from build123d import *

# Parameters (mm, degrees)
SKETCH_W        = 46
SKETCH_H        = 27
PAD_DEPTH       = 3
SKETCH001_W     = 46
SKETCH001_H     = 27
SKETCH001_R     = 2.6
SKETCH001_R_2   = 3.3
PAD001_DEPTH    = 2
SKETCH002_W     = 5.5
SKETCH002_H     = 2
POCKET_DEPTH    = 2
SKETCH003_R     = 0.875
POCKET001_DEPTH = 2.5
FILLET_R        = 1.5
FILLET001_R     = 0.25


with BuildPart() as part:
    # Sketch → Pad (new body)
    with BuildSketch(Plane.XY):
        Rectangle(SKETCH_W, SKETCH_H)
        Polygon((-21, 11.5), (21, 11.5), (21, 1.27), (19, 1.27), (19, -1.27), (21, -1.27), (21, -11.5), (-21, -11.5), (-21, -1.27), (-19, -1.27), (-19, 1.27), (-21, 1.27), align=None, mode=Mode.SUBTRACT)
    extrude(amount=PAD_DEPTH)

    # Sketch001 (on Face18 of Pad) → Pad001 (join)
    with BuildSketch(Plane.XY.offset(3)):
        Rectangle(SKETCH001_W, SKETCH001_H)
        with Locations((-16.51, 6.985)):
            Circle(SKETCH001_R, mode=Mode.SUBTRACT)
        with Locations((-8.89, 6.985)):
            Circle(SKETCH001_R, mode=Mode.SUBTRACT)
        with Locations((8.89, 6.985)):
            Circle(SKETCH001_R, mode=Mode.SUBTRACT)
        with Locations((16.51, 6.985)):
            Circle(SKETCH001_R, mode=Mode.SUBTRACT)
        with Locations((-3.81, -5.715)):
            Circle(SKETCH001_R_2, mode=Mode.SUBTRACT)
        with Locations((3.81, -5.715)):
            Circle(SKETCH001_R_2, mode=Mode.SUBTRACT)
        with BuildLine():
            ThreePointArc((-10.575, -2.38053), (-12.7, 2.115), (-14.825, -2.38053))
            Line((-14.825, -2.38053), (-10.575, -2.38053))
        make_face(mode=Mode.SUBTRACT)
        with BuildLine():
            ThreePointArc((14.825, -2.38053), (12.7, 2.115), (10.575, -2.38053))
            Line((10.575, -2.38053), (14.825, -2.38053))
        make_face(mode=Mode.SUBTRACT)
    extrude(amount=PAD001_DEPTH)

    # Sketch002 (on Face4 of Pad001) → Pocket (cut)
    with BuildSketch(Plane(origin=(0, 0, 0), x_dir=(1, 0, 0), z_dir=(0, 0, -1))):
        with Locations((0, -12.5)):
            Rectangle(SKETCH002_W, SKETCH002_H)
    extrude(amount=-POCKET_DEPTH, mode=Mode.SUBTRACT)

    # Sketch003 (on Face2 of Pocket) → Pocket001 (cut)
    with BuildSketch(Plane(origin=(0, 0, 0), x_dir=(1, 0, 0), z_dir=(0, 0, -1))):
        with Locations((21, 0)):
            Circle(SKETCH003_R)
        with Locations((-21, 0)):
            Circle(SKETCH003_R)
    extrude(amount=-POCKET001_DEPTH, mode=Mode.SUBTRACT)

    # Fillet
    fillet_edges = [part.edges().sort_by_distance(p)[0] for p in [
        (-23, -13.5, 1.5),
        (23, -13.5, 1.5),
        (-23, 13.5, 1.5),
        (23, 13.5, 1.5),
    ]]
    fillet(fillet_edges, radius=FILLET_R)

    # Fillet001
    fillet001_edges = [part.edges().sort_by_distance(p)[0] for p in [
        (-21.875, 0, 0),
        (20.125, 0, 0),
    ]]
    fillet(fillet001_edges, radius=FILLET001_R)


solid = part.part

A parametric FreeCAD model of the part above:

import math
import FreeCAD as App
import Part
import Sketcher

V = App.Vector


def edges_at(feature, points):
    """Names of the edges that pass closest to the given points."""
    edges = feature.Shape.Edges
    near = lambda p: min(range(len(edges)), key=lambda i: edges[i].distToShape(Part.Vertex(*p))[0])
    return sorted({f"Edge{near(p) + 1}" for p in points})

doc = App.newDocument("Part")
body = doc.addObject("PartDesign::Body", "Body")

sketch1 = body.newObject("Sketcher::SketchObject", "Sketch")
sketch1.AttachmentSupport = (doc.getObject("XY_Plane"), [""])
sketch1.MapMode = "FlatFace"
sketch1.addGeometry(Part.LineSegment(V(-23, 13.5, 0), V(-23, -13.5, 0)), False)
sketch1.addGeometry(Part.LineSegment(V(-23, -13.5, 0), V(23, -13.5, 0)), False)
sketch1.addGeometry(Part.LineSegment(V(23, -13.5, 0), V(23, 13.5, 0)), False)
sketch1.addGeometry(Part.LineSegment(V(23, 13.5, 0), V(-23, 13.5, 0)), False)
sketch1.addGeometry(Part.LineSegment(V(-21, 1.27, 0), V(-21, 11.5, 0)), False)
sketch1.addGeometry(Part.LineSegment(V(-21, 11.5, 0), V(21, 11.5, 0)), False)
sketch1.addGeometry(Part.LineSegment(V(21, 11.5, 0), V(21, 1.27, 0)), False)
sketch1.addGeometry(Part.LineSegment(V(21, 1.27, 0), V(19, 1.27, 0)), False)
sketch1.addGeometry(Part.LineSegment(V(19, 1.27, 0), V(19, -1.27, 0)), False)
sketch1.addGeometry(Part.LineSegment(V(19, -1.27, 0), V(21, -1.27, 0)), False)
sketch1.addGeometry(Part.LineSegment(V(21, -1.27, 0), V(21, -11.5, 0)), False)
sketch1.addGeometry(Part.LineSegment(V(21, -11.5, 0), V(-21, -11.5, 0)), False)
sketch1.addGeometry(Part.LineSegment(V(-21, -11.5, 0), V(-21, -1.27, 0)), False)
sketch1.addGeometry(Part.LineSegment(V(-21, -1.27, 0), V(-19, -1.27, 0)), False)
sketch1.addGeometry(Part.LineSegment(V(-19, -1.27, 0), V(-19, 1.27, 0)), False)
sketch1.addGeometry(Part.LineSegment(V(-19, 1.27, 0), V(-21, 1.27, 0)), False)
sketch1.addConstraint(Sketcher.Constraint("Coincident", 0, 2, 1, 1))
sketch1.addConstraint(Sketcher.Constraint("Coincident", 1, 2, 2, 1))
sketch1.addConstraint(Sketcher.Constraint("Coincident", 2, 2, 3, 1))
sketch1.addConstraint(Sketcher.Constraint("Coincident", 3, 2, 0, 1))
sketch1.addConstraint(Sketcher.Constraint("Coincident", 4, 2, 5, 1))
sketch1.addConstraint(Sketcher.Constraint("Coincident", 5, 2, 6, 1))
sketch1.addConstraint(Sketcher.Constraint("Coincident", 6, 2, 7, 1))
sketch1.addConstraint(Sketcher.Constraint("Coincident", 7, 2, 8, 1))
sketch1.addConstraint(Sketcher.Constraint("Coincident", 8, 2, 9, 1))
sketch1.addConstraint(Sketcher.Constraint("Coincident", 9, 2, 10, 1))
sketch1.addConstraint(Sketcher.Constraint("Coincident", 10, 2, 11, 1))
sketch1.addConstraint(Sketcher.Constraint("Coincident", 11, 2, 12, 1))
sketch1.addConstraint(Sketcher.Constraint("Coincident", 12, 2, 13, 1))
sketch1.addConstraint(Sketcher.Constraint("Coincident", 13, 2, 14, 1))
sketch1.addConstraint(Sketcher.Constraint("Coincident", 14, 2, 15, 1))
sketch1.addConstraint(Sketcher.Constraint("Coincident", 15, 2, 4, 1))
sketch1.addConstraint(Sketcher.Constraint("Vertical", 0))
sketch1.addConstraint(Sketcher.Constraint("Horizontal", 1))
sketch1.addConstraint(Sketcher.Constraint("Vertical", 2))
sketch1.addConstraint(Sketcher.Constraint("Horizontal", 3))
sketch1.addConstraint(Sketcher.Constraint("Vertical", 4))
sketch1.addConstraint(Sketcher.Constraint("Horizontal", 5))
sketch1.addConstraint(Sketcher.Constraint("Vertical", 6))
sketch1.addConstraint(Sketcher.Constraint("Horizontal", 7))
sketch1.addConstraint(Sketcher.Constraint("Vertical", 8))
sketch1.addConstraint(Sketcher.Constraint("Horizontal", 9))
sketch1.addConstraint(Sketcher.Constraint("Vertical", 10))
sketch1.addConstraint(Sketcher.Constraint("Horizontal", 11))
sketch1.addConstraint(Sketcher.Constraint("Vertical", 12))
sketch1.addConstraint(Sketcher.Constraint("Horizontal", 13))
sketch1.addConstraint(Sketcher.Constraint("Vertical", 14))
sketch1.addConstraint(Sketcher.Constraint("Horizontal", 15))
sketch1.addConstraint(Sketcher.Constraint("Symmetric", 0, 2, 2, 2, -1, 1))
sketch1.addConstraint(Sketcher.Constraint("Symmetric", 4, 2, 10, 2, -1, 1))
sketch1.addConstraint(Sketcher.Constraint("Symmetric", 6, 2, 12, 2, -1, 1))
sketch1.addConstraint(Sketcher.Constraint("Symmetric", 8, 2, 14, 2, -1, 1))
sketch1.addConstraint(Sketcher.Constraint("Symmetric", 9, 2, 12, 2, -2))
sketch1.addConstraint(Sketcher.Constraint("DistanceX", 1, 1, 1, 2, 46.0))
sketch1.addConstraint(Sketcher.Constraint("DistanceX", 5, 1, 5, 2, 42.0))
sketch1.addConstraint(Sketcher.Constraint("DistanceX", 7, 2, 7, 1, 2.0))
sketch1.addConstraint(Sketcher.Constraint("DistanceY", 0, 2, 0, 1, 27.0))
sketch1.addConstraint(Sketcher.Constraint("DistanceY", 4, 2, 3, 2, 2.0))
sketch1.addConstraint(Sketcher.Constraint("DistanceY", 4, 1, 4, 2, 10.23))
pad1 = body.newObject("PartDesign::Pad", "Pad")
pad1.Profile = sketch1
pad1.Length = 3

sketch2 = body.newObject("Sketcher::SketchObject", "Sketch001")
sketch2.AttachmentSupport = (doc.getObject("XY_Plane"), [""])
sketch2.MapMode = "FlatFace"
sketch2.AttachmentOffset = App.Placement(V(0, 0, 3), App.Rotation())
sketch2.addGeometry(Part.LineSegment(V(-23, 13.5, 0), V(-23, -13.5, 0)), False)
sketch2.addGeometry(Part.LineSegment(V(-23, -13.5, 0), V(23, -13.5, 0)), False)
sketch2.addGeometry(Part.LineSegment(V(23, -13.5, 0), V(23, 13.5, 0)), False)
sketch2.addGeometry(Part.LineSegment(V(23, 13.5, 0), V(-23, 13.5, 0)), False)
sketch2.addGeometry(Part.Circle(V(-3.81, -5.715, 0), V(0, 0, 1), 3.3), False)
sketch2.addGeometry(Part.ArcOfCircle(Part.Circle(V(-12.7, -0.635, 0), V(0, 0, 1), 2.75), math.radians(-39.400569), math.radians(219.400569)), False)
sketch2.addGeometry(Part.LineSegment(V(-10.575, -2.38053, 0), V(-14.825, -2.38053, 0)), False)
sketch2.addGeometry(Part.Circle(V(3.81, -5.715, 0), V(0, 0, 1), 3.3), False)
sketch2.addGeometry(Part.ArcOfCircle(Part.Circle(V(12.7, -0.635, 0), V(0, 0, 1), 2.75), math.radians(-39.400569), math.radians(219.400569)), False)
sketch2.addGeometry(Part.LineSegment(V(14.825, -2.38053, 0), V(10.575, -2.38053, 0)), False)
sketch2.addGeometry(Part.Circle(V(-16.51, 6.985, 0), V(0, 0, 1), 2.6), False)
sketch2.addGeometry(Part.Circle(V(-8.89, 6.985, 0), V(0, 0, 1), 2.6), False)
sketch2.addGeometry(Part.Circle(V(8.89, 6.985, 0), V(0, 0, 1), 2.6), False)
sketch2.addGeometry(Part.Circle(V(16.51, 6.985, 0), V(0, 0, 1), 2.6), False)
sketch2.addConstraint(Sketcher.Constraint("Coincident", 0, 2, 1, 1))
sketch2.addConstraint(Sketcher.Constraint("Coincident", 1, 2, 2, 1))
sketch2.addConstraint(Sketcher.Constraint("Coincident", 2, 2, 3, 1))
sketch2.addConstraint(Sketcher.Constraint("Coincident", 3, 2, 0, 1))
sketch2.addConstraint(Sketcher.Constraint("Coincident", 5, 1, 6, 1))
sketch2.addConstraint(Sketcher.Constraint("Coincident", 6, 2, 5, 2))
sketch2.addConstraint(Sketcher.Constraint("Coincident", 8, 1, 9, 1))
sketch2.addConstraint(Sketcher.Constraint("Coincident", 9, 2, 8, 2))
sketch2.addConstraint(Sketcher.Constraint("Vertical", 0))
sketch2.addConstraint(Sketcher.Constraint("Horizontal", 1))
sketch2.addConstraint(Sketcher.Constraint("Vertical", 2))
sketch2.addConstraint(Sketcher.Constraint("Horizontal", 3))
sketch2.addConstraint(Sketcher.Constraint("Horizontal", 6))
sketch2.addConstraint(Sketcher.Constraint("Horizontal", 9))
sketch2.addConstraint(Sketcher.Constraint("Equal", 4, 7))
sketch2.addConstraint(Sketcher.Constraint("Equal", 5, 8))
sketch2.addConstraint(Sketcher.Constraint("Equal", 10, 11))
sketch2.addConstraint(Sketcher.Constraint("Equal", 11, 12))
sketch2.addConstraint(Sketcher.Constraint("Equal", 12, 13))
sketch2.addConstraint(Sketcher.Constraint("Symmetric", 0, 2, 2, 2, -1, 1))
sketch2.addConstraint(Sketcher.Constraint("Symmetric", 4, 3, 7, 3, -2))
sketch2.addConstraint(Sketcher.Constraint("Symmetric", 5, 3, 8, 3, -2))
sketch2.addConstraint(Sketcher.Constraint("Symmetric", 11, 3, 12, 3, -2))
sketch2.addConstraint(Sketcher.Constraint("Symmetric", 10, 3, 13, 3, -2))
sketch2.addConstraint(Sketcher.Constraint("Horizontal", 10, 3, 11, 3))
sketch2.addConstraint(Sketcher.Constraint("Horizontal", 6, 2, 8, 1))
sketch2.addConstraint(Sketcher.Constraint("Diameter", 4, 6.6))
sketch2.addConstraint(Sketcher.Constraint("Diameter", 10, 5.2))
sketch2.addConstraint(Sketcher.Constraint("DistanceX", 1, 1, 1, 2, 46.0))
sketch2.addConstraint(Sketcher.Constraint("DistanceY", 0, 2, 0, 1, 27.0))
sketch2.addConstraint(Sketcher.Constraint("Radius", 5, 2.75))
sketch2.addConstraint(Sketcher.Constraint("DistanceX", 6, 2, 6, 1, 4.25))
sketch2.addConstraint(Sketcher.Constraint("DistanceX", 5, 3, -1, 1, 12.7))
sketch2.addConstraint(Sketcher.Constraint("DistanceX", 10, 3, 4, 3, 12.7))
sketch2.addConstraint(Sketcher.Constraint("DistanceY", 4, 3, 10, 3, 12.7))
sketch2.addConstraint(Sketcher.Constraint("DistanceX", 11, 3, 7, 3, 12.7))
sketch2.addConstraint(Sketcher.Constraint("DistanceX", 4, 3, -1, 1, 3.81))
sketch2.addConstraint(Sketcher.Constraint("DistanceY", 4, 3, 5, 3, 5.08))
sketch2.addConstraint(Sketcher.Constraint("DistanceY", 4, 3, -1, 1, 5.715))
pad2 = body.newObject("PartDesign::Pad", "Pad001")
pad2.Profile = sketch2
pad2.Length = 2

sketch3 = body.newObject("Sketcher::SketchObject", "Sketch002")
sketch3.AttachmentSupport = (doc.getObject("XY_Plane"), [""])
sketch3.MapMode = "FlatFace"
sketch3.addGeometry(Part.LineSegment(V(-2.75, 11.5, 0), V(-2.75, 13.5, 0)), False)
sketch3.addGeometry(Part.LineSegment(V(-2.75, 13.5, 0), V(2.75, 13.5, 0)), False)
sketch3.addGeometry(Part.LineSegment(V(2.75, 13.5, 0), V(2.75, 11.5, 0)), False)
sketch3.addGeometry(Part.LineSegment(V(2.75, 11.5, 0), V(-2.75, 11.5, 0)), False)
sketch3.addConstraint(Sketcher.Constraint("Coincident", 0, 2, 1, 1))
sketch3.addConstraint(Sketcher.Constraint("Coincident", 1, 2, 2, 1))
sketch3.addConstraint(Sketcher.Constraint("Coincident", 2, 2, 3, 1))
sketch3.addConstraint(Sketcher.Constraint("Coincident", 3, 2, 0, 1))
sketch3.addConstraint(Sketcher.Constraint("Vertical", 0))
sketch3.addConstraint(Sketcher.Constraint("Horizontal", 1))
sketch3.addConstraint(Sketcher.Constraint("Vertical", 2))
sketch3.addConstraint(Sketcher.Constraint("Horizontal", 3))
sketch3.addConstraint(Sketcher.Constraint("DistanceY", 0, 1, 0, 2, 2.0))
sketch3.addConstraint(Sketcher.Constraint("DistanceX", 1, 1, 1, 2, 5.5))
sketch3.addConstraint(Sketcher.Constraint("DistanceY", -1, 1, 0, 2, 13.5))
sketch3.addConstraint(Sketcher.Constraint("DistanceX", 0, 2, -1, 1, 2.75))
pocket1 = body.newObject("PartDesign::Pocket", "Pocket")
pocket1.Profile = sketch3
pocket1.Length = 2
pocket1.Reversed = True

sketch4 = body.newObject("Sketcher::SketchObject", "Sketch003")
sketch4.AttachmentSupport = (doc.getObject("XY_Plane"), [""])
sketch4.MapMode = "FlatFace"
sketch4.addGeometry(Part.Circle(V(21, 0, 0), V(0, 0, 1), 0.875), False)
sketch4.addGeometry(Part.Circle(V(-21, 0, 0), V(0, 0, 1), 0.875), False)
sketch4.addConstraint(Sketcher.Constraint("Equal", 0, 1))
sketch4.addConstraint(Sketcher.Constraint("Symmetric", 0, 3, 1, 3, -1, 1))
sketch4.addConstraint(Sketcher.Constraint("PointOnObject", 0, 3, -1))
sketch4.addConstraint(Sketcher.Constraint("Diameter", 0, 1.75))
sketch4.addConstraint(Sketcher.Constraint("DistanceX", -1, 1, 0, 3, 21.0))
pocket2 = body.newObject("PartDesign::Pocket", "Pocket001")
pocket2.Profile = sketch4
pocket2.Length = 2.5
pocket2.Reversed = True
doc.recompute()

fillet = body.newObject("PartDesign::Fillet", "Fillet")
fillet.Base = (pocket2, edges_at(pocket2, [
    (-23, -13.5, 2.5),
    (23, -13.5, 2.5),
    (-23, 13.5, 2.5),
    (23, 13.5, 2.5),
]))
fillet.Radius = 1.5
doc.recompute()

fillet2 = body.newObject("PartDesign::Fillet", "Fillet001")
fillet2.Base = (fillet, edges_at(fillet, [(-21.875, 0, 0), (20.125, 0, 0)]))
fillet2.Radius = 0.25

doc.recompute()
